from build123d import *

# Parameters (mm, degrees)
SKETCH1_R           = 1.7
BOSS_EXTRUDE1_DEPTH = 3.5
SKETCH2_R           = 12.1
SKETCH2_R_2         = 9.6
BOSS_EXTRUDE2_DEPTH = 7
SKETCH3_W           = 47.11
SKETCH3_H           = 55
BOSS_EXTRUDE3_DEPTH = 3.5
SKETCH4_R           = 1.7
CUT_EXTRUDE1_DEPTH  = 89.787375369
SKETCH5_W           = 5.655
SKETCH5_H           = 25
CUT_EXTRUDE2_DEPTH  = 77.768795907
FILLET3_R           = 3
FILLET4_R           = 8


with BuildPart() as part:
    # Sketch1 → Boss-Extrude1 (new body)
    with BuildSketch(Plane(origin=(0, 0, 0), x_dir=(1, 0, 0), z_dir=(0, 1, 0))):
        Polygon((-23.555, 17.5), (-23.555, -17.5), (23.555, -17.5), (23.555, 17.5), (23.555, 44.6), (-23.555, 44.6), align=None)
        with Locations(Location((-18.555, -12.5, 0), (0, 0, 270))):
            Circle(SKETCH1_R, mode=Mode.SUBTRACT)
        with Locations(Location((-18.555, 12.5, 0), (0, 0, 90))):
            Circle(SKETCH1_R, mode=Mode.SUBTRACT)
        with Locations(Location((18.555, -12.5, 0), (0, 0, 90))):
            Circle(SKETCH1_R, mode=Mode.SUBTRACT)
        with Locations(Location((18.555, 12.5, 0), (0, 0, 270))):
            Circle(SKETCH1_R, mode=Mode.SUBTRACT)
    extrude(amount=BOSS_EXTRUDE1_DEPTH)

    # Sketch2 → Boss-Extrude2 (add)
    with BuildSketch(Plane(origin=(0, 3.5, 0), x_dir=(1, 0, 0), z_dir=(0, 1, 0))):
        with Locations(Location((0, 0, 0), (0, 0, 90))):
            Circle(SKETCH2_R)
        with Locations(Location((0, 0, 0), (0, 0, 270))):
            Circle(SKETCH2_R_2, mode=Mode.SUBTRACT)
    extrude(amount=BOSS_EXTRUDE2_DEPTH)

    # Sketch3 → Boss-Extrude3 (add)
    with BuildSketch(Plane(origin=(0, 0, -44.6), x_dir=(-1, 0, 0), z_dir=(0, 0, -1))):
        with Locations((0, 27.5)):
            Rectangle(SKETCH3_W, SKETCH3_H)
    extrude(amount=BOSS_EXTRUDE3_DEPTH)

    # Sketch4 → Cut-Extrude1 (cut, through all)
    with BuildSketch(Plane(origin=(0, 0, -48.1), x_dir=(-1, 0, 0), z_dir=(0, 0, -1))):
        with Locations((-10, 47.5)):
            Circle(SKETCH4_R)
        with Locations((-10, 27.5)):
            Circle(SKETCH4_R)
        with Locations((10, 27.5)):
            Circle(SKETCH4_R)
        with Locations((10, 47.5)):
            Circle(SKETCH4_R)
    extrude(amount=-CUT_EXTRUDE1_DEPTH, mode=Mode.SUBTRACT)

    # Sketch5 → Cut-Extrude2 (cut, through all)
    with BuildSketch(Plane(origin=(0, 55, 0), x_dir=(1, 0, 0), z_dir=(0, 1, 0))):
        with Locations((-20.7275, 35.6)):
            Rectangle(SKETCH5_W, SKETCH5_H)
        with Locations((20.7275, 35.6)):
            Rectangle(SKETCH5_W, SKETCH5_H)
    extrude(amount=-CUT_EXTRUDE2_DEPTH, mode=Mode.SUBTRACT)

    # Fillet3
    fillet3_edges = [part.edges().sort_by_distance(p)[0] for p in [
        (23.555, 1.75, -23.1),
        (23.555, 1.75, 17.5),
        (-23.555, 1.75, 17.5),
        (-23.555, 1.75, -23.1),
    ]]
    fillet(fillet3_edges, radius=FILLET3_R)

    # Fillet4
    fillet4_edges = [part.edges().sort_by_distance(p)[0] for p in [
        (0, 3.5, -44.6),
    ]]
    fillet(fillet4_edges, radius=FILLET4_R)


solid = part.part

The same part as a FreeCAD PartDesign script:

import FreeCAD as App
import Part
import Sketcher


def edges_at(feature, points):
    """Names of the edges that pass closest to the given points."""
    edges = feature.Shape.Edges
    near = lambda p: min(range(len(edges)), key=lambda i: edges[i].distToShape(Part.Vertex(*p))[0])
    return sorted({f"Edge{near(p) + 1}" for p in points})

doc = App.newDocument("Part")
params = doc.addObject("Spreadsheet::Sheet", "Params")
for row, (alias, value) in enumerate([
    ("sketch1_diameter", "3.4 mm"),
    ("sketch1_height", "62.1 mm"),
    ("sketch1_width", "47.11 mm"),
    ("pad1_length", "3.5 mm"),
    ("sketch2_diameter", "24.2 mm"),
    ("sketch2_diameter2", "19.2 mm"),
    ("pad2_length", "7 mm"),
    ("sketch3_height", "55 mm"),
    ("sketch3_width", "47.11 mm"),
    ("pad3_length", "3.5 mm"),
    ("sketch4_diameter", "3.4 mm"),
    ("sketch5_height", "25 mm"),
    ("fillet_radius", "3 mm"),
    ("fillet2_radius", "8 mm"),
], start=1):
    params.set(f"A{row}", alias)
    params.set(f"B{row}", "=" + value)
    params.setAlias(f"B{row}", alias)

body = doc.addObject("PartDesign::Body", "Body")

# Sketch on XZ plane
sketch1 = body.newObject("Sketcher::SketchObject", "Sketch")
sketch1.AttachmentSupport = (doc.getObject("XZ_Plane"), [""])
sketch1.MapMode = "FlatFace"
sketch1.addGeometry(Part.LineSegment(App.Vector(-23.555, 17.5, 0), App.Vector(23.555, 17.5, 0)), False)
sketch1.addGeometry(Part.LineSegment(App.Vector(23.555, 17.5, 0), App.Vector(23.555, -44.6, 0)), False)
sketch1.addGeometry(Part.LineSegment(App.Vector(23.555, -44.6, 0), App.Vector(-23.555, -44.6, 0)), False)
sketch1.addGeometry(Part.LineSegment(App.Vector(-23.555, -44.6, 0), App.Vector(-23.555, 17.5, 0)), False)
sketch1.addGeometry(Part.Circle(App.Vector(-18.555, 12.5, 0), App.Vector(0, 0, 1), 1.7), False)
sketch1.addGeometry(Part.Circle(App.Vector(18.555, 12.5, 0), App.Vector(0, 0, 1), 1.7), False)
sketch1.addGeometry(Part.Circle(App.Vector(-18.555, -12.5, 0), App.Vector(0, 0, 1), 1.7), False)
sketch1.addGeometry(Part.Circle(App.Vector(18.555, -12.5, 0), App.Vector(0, 0, 1), 1.7), False)
sketch1.addConstraint(Sketcher.Constraint("Coincident", 0, 2, 1, 1))
sketch1.addConstraint(Sketcher.Constraint("Coincident", 1, 2, 2, 1))
sketch1.addConstraint(Sketcher.Constraint("Coincident", 2, 2, 3, 1))
sketch1.addConstraint(Sketcher.Constraint("Coincident", 3, 2, 0, 1))
sketch1.addConstraint(Sketcher.Constraint("Horizontal", 0))
sketch1.addConstraint(Sketcher.Constraint("Vertical", 1))
sketch1.addConstraint(Sketcher.Constraint("Horizontal", 2))
sketch1.addConstraint(Sketcher.Constraint("Vertical", 3))
sketch1.addConstraint(Sketcher.Constraint("Equal", 4, 5))
sketch1.addConstraint(Sketcher.Constraint("Equal", 5, 6))
sketch1.addConstraint(Sketcher.Constraint("Equal", 6, 7))
sketch1.addConstraint(Sketcher.Constraint("Symmetric", 5, 3, 6, 3, -1, 1))
sketch1.addConstraint(Sketcher.Constraint("Symmetric", 4, 3, 7, 3, -1, 1))
sketch1.addConstraint(Sketcher.Constraint("Symmetric", 4, 3, 5, 3, -2))
sketch1.addConstraint(Sketcher.Constraint("Diameter", 4, 3.4))
sketch1.addConstraint(Sketcher.Constraint("DistanceY", 1, 2, 1, 1, 62.1))
sketch1.addConstraint(Sketcher.Constraint("DistanceY", 6, 3, 4, 3, 25.0))
sketch1.addConstraint(Sketcher.Constraint("DistanceX", 5, 3, 0, 2, 5.0))
sketch1.addConstraint(Sketcher.Constraint("DistanceY", 5, 3, 0, 2, 5.0))
sketch1.addConstraint(Sketcher.Constraint("DistanceX", 2, 2, 6, 3, 5.0))
sketch1.addConstraint(Sketcher.Constraint("DistanceX", 0, 1, 0, 2, 47.11))
sketch1.setExpression("Constraints[14]", "Params.sketch1_diameter")
sketch1.setExpression("Constraints[15]", "Params.sketch1_height")
sketch1.setExpression("Constraints[20]", "Params.sketch1_width")
pad1 = body.newObject("PartDesign::Pad", "Pad")
pad1.Profile = sketch1
pad1.setExpression("Length", "Params.pad1_length")
pad1.Reversed = True

# Sketch on XZ plane
sketch2 = body.newObject("Sketcher::SketchObject", "Sketch001")
sketch2.AttachmentSupport = (doc.getObject("XZ_Plane"), [""])
sketch2.MapMode = "FlatFace"
sketch2.AttachmentOffset = App.Placement(App.Vector(0, 0, -3.5), App.Rotation())
sketch2.addGeometry(Part.Circle(App.Vector(0, 0, 0), App.Vector(0, 0, 1), 12.1), False)
sketch2.addGeometry(Part.Circle(App.Vector(0, 0, 0), App.Vector(0, 0, 1), 9.6), False)
sketch2.addConstraint(Sketcher.Constraint("Coincident", 0, 3, -1, 1))
sketch2.addConstraint(Sketcher.Constraint("Coincident", 1, 3, -1, 1))
sketch2.addConstraint(Sketcher.Constraint("Diameter", 0, 24.2))
sketch2.addConstraint(Sketcher.Constraint("Diameter", 1, 19.2))
sketch2.setExpression("Constraints[2]", "Params.sketch2_diameter")
sketch2.setExpression("Constraints[3]", "Params.sketch2_diameter2")
pad2 = body.newObject("PartDesign::Pad", "Pad001")
pad2.Profile = sketch2
pad2.setExpression("Length", "Params.pad2_length")
pad2.Reversed = True

# Sketch on XY plane
sketch3 = body.newObject("Sketcher::SketchObject", "Sketch002")
sketch3.AttachmentSupport = (doc.getObject("XY_Plane"), [""])
sketch3.MapMode = "FlatFace"
sketch3.AttachmentOffset = App.Placement(App.Vector(0, 0, -44.6), App.Rotation())
sketch3.addGeometry(Part.LineSegment(App.Vector(23.555, 55, 0), App.Vector(23.555, 0, 0)), False)
sketch3.addGeometry(Part.LineSegment(App.Vector(23.555, 0, 0), App.Vector(-23.555, 0, 0)), False)
sketch3.addGeometry(Part.LineSegment(App.Vector(-23.555, 0, 0), App.Vector(-23.555, 55, 0)), False)
sketch3.addGeometry(Part.LineSegment(App.Vector(-23.555, 55, 0), App.Vector(23.555, 55, 0)), False)
sketch3.addConstraint(Sketcher.Constraint("Coincident", 0, 2, 1, 1))
sketch3.addConstraint(Sketcher.Constraint("Coincident", 1, 2, 2, 1))
sketch3.addConstraint(Sketcher.Constraint("Coincident", 2, 2, 3, 1))
sketch3.addConstraint(Sketcher.Constraint("Coincident", 3, 2, 0, 1))
sketch3.addConstraint(Sketcher.Constraint("Vertical", 0))
sketch3.addConstraint(Sketcher.Constraint("Horizontal", 1))
sketch3.addConstraint(Sketcher.Constraint("Vertical", 2))
sketch3.addConstraint(Sketcher.Constraint("Horizontal", 3))
sketch3.addConstraint(Sketcher.Constraint("Symmetric", 0, 2, 1, 2, -1, 1))
sketch3.addConstraint(Sketcher.Constraint("DistanceY", 0, 2, 0, 1, 55.0))
sketch3.addConstraint(Sketcher.Constraint("DistanceX", 1, 2, 1, 1, 47.11))
sketch3.setExpression("Constraints[9]", "Params.sketch3_height")
sketch3.setExpression("Constraints[10]", "Params.sketch3_width")
pad3 = body.newObject("PartDesign::Pad", "Pad002")
pad3.Profile = sketch3
pad3.setExpression("Length", "Params.pad3_length")
pad3.Reversed = True

# Sketch on XY plane
sketch4 = body.newObject("Sketcher::SketchObject", "Sketch003")
sketch4.AttachmentSupport = (doc.getObject("XY_Plane"), [""])
sketch4.MapMode = "FlatFace"
sketch4.AttachmentOffset = App.Placement(App.Vector(0, 0, -48.1), App.Rotation())
sketch4.addGeometry(Part.Circle(App.Vector(10, 47.5, 0), App.Vector(0, 0, 1), 1.7), False)
sketch4.addGeometry(Part.Circle(App.Vector(10, 27.5, 0), App.Vector(0, 0, 1), 1.7), False)
sketch4.addGeometry(Part.Circle(App.Vector(-10, 27.5, 0), App.Vector(0, 0, 1), 1.7), False)
sketch4.addGeometry(Part.Circle(App.Vector(-10, 47.5, 0), App.Vector(0, 0, 1), 1.7), False)
sketch4.addConstraint(Sketcher.Constraint("Equal", 0, 1))
sketch4.addConstraint(Sketcher.Constraint("Equal", 1, 2))
sketch4.addConstraint(Sketcher.Constraint("Equal", 2, 3))
sketch4.addConstraint(Sketcher.Constraint("Symmetric", 1, 3, 2, 3, -2))
sketch4.addConstraint(Sketcher.Constraint("Symmetric", 0, 3, 3, 3, -2))
sketch4.addConstraint(Sketcher.Constraint("Vertical", 0, 3, 1, 3))
sketch4.addConstraint(Sketcher.Constraint("Diameter", 0, 3.4))
sketch4.addConstraint(Sketcher.Constraint("DistanceX", -1, 1, 0, 3, 10.0))
sketch4.addConstraint(Sketcher.Constraint("DistanceY", 1, 3, 0, 3, 20.0))
sketch4.addConstraint(Sketcher.Constraint("DistanceY", -1, 1, 0, 3, 47.5))
sketch4.setExpression("Constraints[6]", "Params.sketch4_diameter")
pocket1 = body.newObject("PartDesign::Pocket", "Pocket")
pocket1.Profile = sketch4
pocket1.Type = "ThroughAll"
pocket1.Reversed = True

# Sketch on XZ plane
sketch5 = body.newObject("Sketcher::SketchObject", "Sketch004")
sketch5.AttachmentSupport = (doc.getObject("XZ_Plane"), [""])
sketch5.MapMode = "FlatFace"
sketch5.AttachmentOffset = App.Placement(App.Vector(0, 0, -55), App.Rotation())
sketch5.addGeometry(Part.LineSegment(App.Vector(-23.555, -48.1, 0), App.Vector(-23.555, -23.1, 0)), False)
sketch5.addGeometry(Part.LineSegment(App.Vector(-23.555, -23.1, 0), App.Vector(-17.9, -23.1, 0)), False)
sketch5.addGeometry(Part.LineSegment(App.Vector(-17.9, -23.1, 0), App.Vector(-17.9, -48.1, 0)), False)
sketch5.addGeometry(Part.LineSegment(App.Vector(-17.9, -48.1, 0), App.Vector(-23.555, -48.1, 0)), False)
sketch5.addGeometry(Part.LineSegment(App.Vector(17.9, -48.1, 0), App.Vector(17.9, -23.1, 0)), False)
sketch5.addGeometry(Part.LineSegment(App.Vector(17.9, -23.1, 0), App.Vector(23.555, -23.1, 0)), False)
sketch5.addGeometry(Part.LineSegment(App.Vector(23.555, -23.1, 0), App.Vector(23.555, -48.1, 0)), False)
sketch5.addGeometry(Part.LineSegment(App.Vector(23.555, -48.1, 0), App.Vector(17.9, -48.1, 0)), False)
sketch5.addConstraint(Sketcher.Constraint("Coincident", 0, 2, 1, 1))
sketch5.addConstraint(Sketcher.Constraint("Coincident", 1, 2, 2, 1))
sketch5.addConstraint(Sketcher.Constraint("Coincident", 2, 2, 3, 1))
sketch5.addConstraint(Sketcher.Constraint("Coincident", 3, 2, 0, 1))
sketch5.addConstraint(Sketcher.Constraint("Coincident", 4, 2, 5, 1))
sketch5.addConstraint(Sketcher.Constraint("Coincident", 5, 2, 6, 1))
sketch5.addConstraint(Sketcher.Constraint("Coincident", 6, 2, 7, 1))
sketch5.addConstraint(Sketcher.Constraint("Coincident", 7, 2, 4, 1))
sketch5.addConstraint(Sketcher.Constraint("Vertical", 0))
sketch5.addConstraint(Sketcher.Constraint("Horizontal", 1))
sketch5.addConstraint(Sketcher.Constraint("Vertical", 2))
sketch5.addConstraint(Sketcher.Constraint("Horizontal", 3))
sketch5.addConstraint(Sketcher.Constraint("Vertical", 4))
sketch5.addConstraint(Sketcher.Constraint("Horizontal", 5))
sketch5.addConstraint(Sketcher.Constraint("Vertical", 6))
sketch5.addConstraint(Sketcher.Constraint("Horizontal", 7))
sketch5.addConstraint(Sketcher.Constraint("Symmetric", 1, 2, 4, 2, -2))
sketch5.addConstraint(Sketcher.Constraint("Symmetric", 3, 2, 6, 2, -2))
sketch5.addConstraint(Sketcher.Constraint("DistanceY", 0, 1, 0, 2, 25.0))
sketch5.addConstraint(Sketcher.Constraint("DistanceY", 0, 2, -1, 1, 23.1))
sketch5.addConstraint(Sketcher.Constraint("DistanceX", 1, 2, -1, 1, 17.9))
sketch5.addConstraint(Sketcher.Constraint("DistanceX", 1, 1, 1, 2, 5.655))
sketch5.setExpression("Constraints[18]", "Params.sketch5_height")
pocket2 = body.newObject("PartDesign::Pocket", "Pocket001")
pocket2.Profile = sketch5
pocket2.Type = "ThroughAll"
pocket2.Reversed = True
doc.recompute()

fillet = body.newObject("PartDesign::Fillet", "Fillet")
fillet.Base = (pocket2, edges_at(pocket2, [
    (23.555, 1.75, -23.1),
    (23.555, 1.75, 17.5),
    (-23.555, 1.75, 17.5),
    (-23.555, 1.75, -23.1),
]))
fillet.setExpression("Radius", "Params.fillet_radius")
doc.recompute()

fillet2 = body.newObject("PartDesign::Fillet", "Fillet001")
fillet2.Base = (fillet, edges_at(fillet, [(0, 3.5, -44.6)]))
fillet2.setExpression("Radius", "Params.fillet2_radius")

doc.recompute()
